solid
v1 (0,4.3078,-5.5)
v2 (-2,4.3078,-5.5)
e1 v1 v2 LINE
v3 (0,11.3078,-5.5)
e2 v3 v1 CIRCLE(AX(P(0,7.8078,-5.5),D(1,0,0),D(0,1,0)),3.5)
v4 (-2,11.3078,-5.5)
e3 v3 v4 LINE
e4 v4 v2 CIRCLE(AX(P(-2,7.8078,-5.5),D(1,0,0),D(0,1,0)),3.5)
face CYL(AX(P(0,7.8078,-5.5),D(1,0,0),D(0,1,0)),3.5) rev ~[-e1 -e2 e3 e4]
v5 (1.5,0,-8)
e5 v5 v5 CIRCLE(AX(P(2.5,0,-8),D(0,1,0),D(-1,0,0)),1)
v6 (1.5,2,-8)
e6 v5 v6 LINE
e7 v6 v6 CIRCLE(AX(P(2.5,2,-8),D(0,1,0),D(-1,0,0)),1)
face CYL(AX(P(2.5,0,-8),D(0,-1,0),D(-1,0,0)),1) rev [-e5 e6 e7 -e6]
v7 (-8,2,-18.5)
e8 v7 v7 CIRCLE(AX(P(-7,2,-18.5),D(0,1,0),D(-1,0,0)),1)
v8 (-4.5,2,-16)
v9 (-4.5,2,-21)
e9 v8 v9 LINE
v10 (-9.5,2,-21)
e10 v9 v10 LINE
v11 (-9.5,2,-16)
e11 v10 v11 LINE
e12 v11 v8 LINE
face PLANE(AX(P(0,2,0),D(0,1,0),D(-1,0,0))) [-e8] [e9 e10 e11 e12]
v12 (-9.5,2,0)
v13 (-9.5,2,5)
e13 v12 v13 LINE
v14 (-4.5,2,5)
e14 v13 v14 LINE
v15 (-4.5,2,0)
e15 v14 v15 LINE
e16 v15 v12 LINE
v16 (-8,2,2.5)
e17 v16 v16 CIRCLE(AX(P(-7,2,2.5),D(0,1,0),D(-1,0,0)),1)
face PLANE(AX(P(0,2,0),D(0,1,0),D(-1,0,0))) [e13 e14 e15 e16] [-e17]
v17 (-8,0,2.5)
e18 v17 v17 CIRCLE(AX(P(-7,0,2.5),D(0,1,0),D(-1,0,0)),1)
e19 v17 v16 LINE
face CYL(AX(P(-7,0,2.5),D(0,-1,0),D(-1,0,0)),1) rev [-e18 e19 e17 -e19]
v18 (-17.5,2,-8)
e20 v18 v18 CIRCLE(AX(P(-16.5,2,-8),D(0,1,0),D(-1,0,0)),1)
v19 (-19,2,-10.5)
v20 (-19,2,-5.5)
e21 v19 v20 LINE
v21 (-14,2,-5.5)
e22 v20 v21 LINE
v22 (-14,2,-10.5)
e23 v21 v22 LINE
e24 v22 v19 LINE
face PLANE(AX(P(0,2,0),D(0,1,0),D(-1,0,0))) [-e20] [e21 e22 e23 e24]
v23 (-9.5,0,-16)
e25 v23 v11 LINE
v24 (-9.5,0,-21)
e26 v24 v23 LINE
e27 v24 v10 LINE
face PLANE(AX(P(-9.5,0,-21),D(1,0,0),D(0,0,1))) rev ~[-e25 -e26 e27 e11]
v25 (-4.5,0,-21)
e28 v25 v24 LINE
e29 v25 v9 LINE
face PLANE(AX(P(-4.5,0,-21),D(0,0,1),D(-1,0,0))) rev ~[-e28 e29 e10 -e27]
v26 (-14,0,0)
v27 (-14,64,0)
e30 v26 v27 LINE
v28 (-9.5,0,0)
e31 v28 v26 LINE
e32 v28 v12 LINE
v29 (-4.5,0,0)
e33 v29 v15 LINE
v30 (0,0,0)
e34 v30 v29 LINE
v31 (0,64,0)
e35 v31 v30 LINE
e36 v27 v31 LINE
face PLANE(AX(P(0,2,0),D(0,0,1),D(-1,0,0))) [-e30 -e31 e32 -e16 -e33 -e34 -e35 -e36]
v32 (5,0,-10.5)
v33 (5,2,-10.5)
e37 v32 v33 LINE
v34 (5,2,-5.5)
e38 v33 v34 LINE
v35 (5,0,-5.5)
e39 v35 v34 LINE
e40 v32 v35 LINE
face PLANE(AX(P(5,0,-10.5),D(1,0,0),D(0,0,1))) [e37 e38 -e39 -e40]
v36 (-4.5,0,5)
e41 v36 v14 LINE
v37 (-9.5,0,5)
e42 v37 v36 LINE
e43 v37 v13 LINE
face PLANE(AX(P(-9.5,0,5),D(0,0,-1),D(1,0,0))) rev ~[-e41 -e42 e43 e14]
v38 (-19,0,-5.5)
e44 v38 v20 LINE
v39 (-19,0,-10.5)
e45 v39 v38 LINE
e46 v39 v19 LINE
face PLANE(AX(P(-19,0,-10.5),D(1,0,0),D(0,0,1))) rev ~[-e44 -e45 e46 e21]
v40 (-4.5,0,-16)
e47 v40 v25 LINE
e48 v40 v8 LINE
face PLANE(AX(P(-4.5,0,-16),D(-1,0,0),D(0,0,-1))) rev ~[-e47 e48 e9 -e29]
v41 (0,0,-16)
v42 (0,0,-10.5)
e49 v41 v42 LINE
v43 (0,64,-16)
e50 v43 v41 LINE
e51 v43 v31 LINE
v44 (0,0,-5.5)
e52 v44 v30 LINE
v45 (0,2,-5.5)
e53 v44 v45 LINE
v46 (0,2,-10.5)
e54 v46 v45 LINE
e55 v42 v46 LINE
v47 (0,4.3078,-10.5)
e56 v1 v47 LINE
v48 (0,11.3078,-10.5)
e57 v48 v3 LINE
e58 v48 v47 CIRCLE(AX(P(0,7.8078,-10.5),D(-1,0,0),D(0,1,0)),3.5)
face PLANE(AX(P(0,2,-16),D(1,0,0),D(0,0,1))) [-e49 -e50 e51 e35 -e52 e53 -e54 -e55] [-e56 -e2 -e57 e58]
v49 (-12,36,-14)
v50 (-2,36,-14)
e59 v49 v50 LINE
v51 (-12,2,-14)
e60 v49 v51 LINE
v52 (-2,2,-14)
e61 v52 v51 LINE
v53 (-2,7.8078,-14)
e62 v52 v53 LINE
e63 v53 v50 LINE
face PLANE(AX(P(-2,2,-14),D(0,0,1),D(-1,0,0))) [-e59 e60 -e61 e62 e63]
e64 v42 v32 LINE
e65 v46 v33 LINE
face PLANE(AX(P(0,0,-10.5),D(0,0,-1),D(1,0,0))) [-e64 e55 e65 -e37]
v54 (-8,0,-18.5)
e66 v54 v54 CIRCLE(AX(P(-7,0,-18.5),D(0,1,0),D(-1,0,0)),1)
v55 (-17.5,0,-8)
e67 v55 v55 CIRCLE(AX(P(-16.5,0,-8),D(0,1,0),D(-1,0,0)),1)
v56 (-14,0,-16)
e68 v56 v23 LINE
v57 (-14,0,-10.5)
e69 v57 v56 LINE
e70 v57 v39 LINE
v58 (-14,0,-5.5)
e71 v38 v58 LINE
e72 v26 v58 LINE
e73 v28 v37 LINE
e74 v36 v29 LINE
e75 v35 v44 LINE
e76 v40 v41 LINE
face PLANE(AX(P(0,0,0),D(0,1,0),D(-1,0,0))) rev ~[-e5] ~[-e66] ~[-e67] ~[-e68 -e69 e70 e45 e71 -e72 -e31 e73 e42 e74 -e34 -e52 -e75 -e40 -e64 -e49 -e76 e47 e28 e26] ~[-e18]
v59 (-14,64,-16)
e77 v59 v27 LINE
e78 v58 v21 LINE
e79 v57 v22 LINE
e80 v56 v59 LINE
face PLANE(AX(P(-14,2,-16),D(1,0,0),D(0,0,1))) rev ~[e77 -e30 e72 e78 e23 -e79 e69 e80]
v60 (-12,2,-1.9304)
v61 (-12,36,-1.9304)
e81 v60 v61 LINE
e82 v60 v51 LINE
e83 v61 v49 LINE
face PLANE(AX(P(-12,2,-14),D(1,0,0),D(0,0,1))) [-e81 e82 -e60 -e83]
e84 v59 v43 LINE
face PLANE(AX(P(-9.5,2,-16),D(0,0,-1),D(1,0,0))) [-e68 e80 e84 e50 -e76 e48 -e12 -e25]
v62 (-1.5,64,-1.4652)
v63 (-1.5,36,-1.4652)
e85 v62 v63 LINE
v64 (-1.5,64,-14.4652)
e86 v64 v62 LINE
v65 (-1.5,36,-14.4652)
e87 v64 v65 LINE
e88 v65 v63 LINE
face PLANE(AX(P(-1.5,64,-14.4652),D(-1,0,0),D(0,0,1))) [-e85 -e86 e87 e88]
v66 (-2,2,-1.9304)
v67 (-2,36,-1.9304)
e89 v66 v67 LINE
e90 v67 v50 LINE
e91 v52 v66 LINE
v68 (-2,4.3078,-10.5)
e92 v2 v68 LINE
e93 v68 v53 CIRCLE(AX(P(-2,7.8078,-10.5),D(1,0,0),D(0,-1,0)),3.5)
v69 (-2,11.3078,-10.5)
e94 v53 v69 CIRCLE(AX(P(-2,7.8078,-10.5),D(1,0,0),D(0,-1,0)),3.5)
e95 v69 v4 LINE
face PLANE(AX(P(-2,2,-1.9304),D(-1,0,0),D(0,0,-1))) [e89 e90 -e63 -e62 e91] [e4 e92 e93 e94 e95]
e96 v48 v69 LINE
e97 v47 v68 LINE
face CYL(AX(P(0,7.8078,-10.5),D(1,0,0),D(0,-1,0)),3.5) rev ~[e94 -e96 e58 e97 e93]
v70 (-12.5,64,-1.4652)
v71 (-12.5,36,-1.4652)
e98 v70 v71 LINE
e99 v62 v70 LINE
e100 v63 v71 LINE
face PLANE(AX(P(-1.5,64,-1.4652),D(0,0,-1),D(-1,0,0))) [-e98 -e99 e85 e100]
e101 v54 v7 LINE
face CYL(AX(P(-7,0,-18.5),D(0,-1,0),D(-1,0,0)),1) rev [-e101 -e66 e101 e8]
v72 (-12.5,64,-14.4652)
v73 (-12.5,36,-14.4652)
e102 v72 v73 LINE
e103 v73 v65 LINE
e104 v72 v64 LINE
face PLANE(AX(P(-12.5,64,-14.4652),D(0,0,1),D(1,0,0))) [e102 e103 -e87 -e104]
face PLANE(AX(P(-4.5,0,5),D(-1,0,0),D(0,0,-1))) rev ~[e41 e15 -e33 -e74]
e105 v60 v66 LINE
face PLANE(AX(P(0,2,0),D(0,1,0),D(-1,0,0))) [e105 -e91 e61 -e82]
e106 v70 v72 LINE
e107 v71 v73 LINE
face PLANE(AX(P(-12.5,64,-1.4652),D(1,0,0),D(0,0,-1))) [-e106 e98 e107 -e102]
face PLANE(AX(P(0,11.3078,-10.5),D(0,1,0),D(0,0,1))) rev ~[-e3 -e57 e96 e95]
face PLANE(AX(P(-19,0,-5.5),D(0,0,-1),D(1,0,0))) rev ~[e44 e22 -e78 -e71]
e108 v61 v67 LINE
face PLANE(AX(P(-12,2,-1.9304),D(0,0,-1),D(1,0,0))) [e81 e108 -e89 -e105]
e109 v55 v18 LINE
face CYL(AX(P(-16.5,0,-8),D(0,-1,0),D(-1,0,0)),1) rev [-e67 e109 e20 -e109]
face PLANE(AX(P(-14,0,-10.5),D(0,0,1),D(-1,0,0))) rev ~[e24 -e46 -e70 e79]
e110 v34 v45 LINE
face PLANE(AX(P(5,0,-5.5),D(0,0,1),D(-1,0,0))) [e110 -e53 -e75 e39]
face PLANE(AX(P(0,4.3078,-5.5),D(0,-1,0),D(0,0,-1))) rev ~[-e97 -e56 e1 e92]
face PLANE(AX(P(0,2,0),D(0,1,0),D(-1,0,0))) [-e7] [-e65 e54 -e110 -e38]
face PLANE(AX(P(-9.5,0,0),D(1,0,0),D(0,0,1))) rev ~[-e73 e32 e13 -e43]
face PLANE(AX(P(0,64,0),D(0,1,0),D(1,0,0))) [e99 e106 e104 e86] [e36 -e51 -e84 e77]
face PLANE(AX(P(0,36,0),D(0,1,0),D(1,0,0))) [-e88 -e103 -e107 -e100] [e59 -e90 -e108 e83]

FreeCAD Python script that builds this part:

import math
import FreeCAD as App
import Part
import Sketcher


def add_polygon(sketch, points):
    """Adds a closed chain of lines whose ends are joined by coincident constraints."""
    first, n = sketch.GeometryCount, len(points)
    for a, b in zip(points, points[1:] + points[:1]):
        sketch.addGeometry(Part.LineSegment(App.Vector(*a, 0), App.Vector(*b, 0)), False)
    for i in range(n):
        sketch.addConstraint(Sketcher.Constraint("Coincident", first + i, 2, first + (i + 1) % n, 1))

doc = App.newDocument("Part")
params = doc.addObject("Spreadsheet::Sheet", "Params")
for row, (alias, value) in enumerate([
    ("sketch1_diameter", "2 mm"),
    ("sketch1_width", "5 mm"),
    ("sketch1_width2", "10 mm"),
    ("sketch1_height", "12 mm"),
    ("pad1_length", "2 mm"),
    ("sketch2_width", "14 mm"),
    ("sketch2_width2", "10 mm"),
    ("sketch2_height", "16 mm"),
    ("pad2_length", "62 mm"),
    ("sketch3_radius", "3.5 mm"),
    ("sketch3_height", "5 mm"),
    ("pocket1_length", "2 mm"),
    ("sketch4_width", "10 mm"),
    ("sketch4_height", "12 mm"),
    ("pad3_length", "2 mm"),
    ("sketch5_width", "11 mm"),
    ("sketch5_height", "13 mm"),
    ("sketch5_width2", "10 mm"),
    ("sketch5_height2", "12 mm"),
    ("pocket2_length", "28 mm"),
], start=1):
    params.set(f"A{row}", alias)
    params.set(f"B{row}", "=" + value)
    params.setAlias(f"B{row}", alias)

body = doc.addObject("PartDesign::Body", "Body")

sketch1 = body.newObject("Sketcher::SketchObject", "Sketch")
sketch1.AttachmentSupport = (doc.getObject("XZ_Plane"), [""])
sketch1.MapMode = "FlatFace"
add_polygon(sketch1, [(-4.5, 0), (0, 0), (0, -5.5), (5, -5.5), (5, -10.5), (0, -10.5), (0, -16), (-4.5, -16), (-4.5, -21), (-9.5, -21), (-9.5, -16), (-14, -16), (-14, -10.5), (-19, -10.5), (-19, -5.5), (-14, -5.5), (-14, 0), (-9.5, 0), (-9.5, 5), (-4.5, 5)])
add_polygon(sketch1, [(-2, -2), (-12, -2), (-12, -14), (-2, -14)])
sketch1.addGeometry(Part.Circle(App.Vector(-7, 2.5, 0), App.Vector(0, 0, 1), 1), False)
sketch1.addGeometry(Part.Circle(App.Vector(-16.5, -8, 0), App.Vector(0, 0, 1), 1), False)
sketch1.addGeometry(Part.Circle(App.Vector(-7, -18.5, 0), App.Vector(0, 0, 1), 1), False)
sketch1.addGeometry(Part.Circle(App.Vector(2.5, -8, 0), App.Vector(0, 0, 1), 1), False)
sketch1.addConstraint(Sketcher.Constraint("Horizontal", 0))
sketch1.addConstraint(Sketcher.Constraint("Vertical", 1))
sketch1.addConstraint(Sketcher.Constraint("Horizontal", 2))
sketch1.addConstraint(Sketcher.Constraint("Vertical", 3))
sketch1.addConstraint(Sketcher.Constraint("Horizontal", 4))
sketch1.addConstraint(Sketcher.Constraint("Vertical", 5))
sketch1.addConstraint(Sketcher.Constraint("Horizontal", 6))
sketch1.addConstraint(Sketcher.Constraint("Vertical", 7))
sketch1.addConstraint(Sketcher.Constraint("Horizontal", 8))
sketch1.addConstraint(Sketcher.Constraint("Vertical", 9))
sketch1.addConstraint(Sketcher.Constraint("Horizontal", 10))
sketch1.addConstraint(Sketcher.Constraint("Vertical", 11))
sketch1.addConstraint(Sketcher.Constraint("Horizontal", 12))
sketch1.addConstraint(Sketcher.Constraint("Vertical", 13))
sketch1.addConstraint(Sketcher.Constraint("Horizontal", 14))
sketch1.addConstraint(Sketcher.Constraint("Vertical", 15))
sketch1.addConstraint(Sketcher.Constraint("Horizontal", 16))
sketch1.addConstraint(Sketcher.Constraint("Vertical", 17))
sketch1.addConstraint(Sketcher.Constraint("Horizontal", 18))
sketch1.addConstraint(Sketcher.Constraint("Vertical", 19))
sketch1.addConstraint(Sketcher.Constraint("Horizontal", 20))
sketch1.addConstraint(Sketcher.Constraint("Vertical", 21))
sketch1.addConstraint(Sketcher.Constraint("Horizontal", 22))
sketch1.addConstraint(Sketcher.Constraint("Vertical", 23))
sketch1.addConstraint(Sketcher.Constraint("Coincident", 0, 2, -1, 1))
sketch1.addConstraint(Sketcher.Constraint("Equal", 24, 25))
sketch1.addConstraint(Sketcher.Constraint("Equal", 25, 26))
sketch1.addConstraint(Sketcher.Constraint("Equal", 26, 27))
sketch1.addConstraint(Sketcher.Constraint("PointOnObject", 4, 2, -2))
sketch1.addConstraint(Sketcher.Constraint("PointOnObject", 15, 2, -1))
sketch1.addConstraint(Sketcher.Constraint("Horizontal", 25, 3, 27, 3))
sketch1.addConstraint(Sketcher.Constraint("Horizontal", 6, 2, 9, 2))
sketch1.addConstraint(Sketcher.Constraint("Horizontal", 4, 2, 11, 2))
sketch1.addConstraint(Sketcher.Constraint("Horizontal", 2, 2, 13, 2))
sketch1.addConstraint(Sketcher.Constraint("Vertical", 24, 3, 26, 3))
sketch1.addConstraint(Sketcher.Constraint("Vertical", 11, 2, 14, 2))
sketch1.addConstraint(Sketcher.Constraint("Vertical", 9, 2, 16, 2))
sketch1.addConstraint(Sketcher.Constraint("Vertical", 7, 2, 18, 2))
sketch1.addConstraint(Sketcher.Constraint("Equal", 4, 8))
sketch1.addConstraint(Sketcher.Constraint("Equal", 6, 10))
sketch1.addConstraint(Sketcher.Constraint("Equal", 8, 12))
sketch1.addConstraint(Sketcher.Constraint("Equal", 18, 3))
sketch1.addConstraint(Sketcher.Constraint("Equal", 1, 5))
sketch1.addConstraint(Sketcher.Constraint("Equal", 3, 7))
sketch1.addConstraint(Sketcher.Constraint("Equal", 13, 17))
sketch1.addConstraint(Sketcher.Constraint("Diameter", 24, 2.0))
sketch1.addConstraint(Sketcher.Constraint("DistanceX", 2, 1, 2, 2, 5.0))
sketch1.addConstraint(Sketcher.Constraint("DistanceX", 20, 2, 20, 1, 10.0))
sketch1.addConstraint(Sketcher.Constraint("DistanceY", 21, 2, 21, 1, 12.0))
sketch1.addConstraint(Sketcher.Constraint("DistanceY", 5, 2, -1, 1, 16.0))
sketch1.addConstraint(Sketcher.Constraint("DistanceX", 10, 2, -1, 1, 14.0))
sketch1.addConstraint(Sketcher.Constraint("DistanceX", 20, 2, -1, 1, 12.0))
sketch1.addConstraint(Sketcher.Constraint("DistanceY", 20, 2, -1, 1, 2.0))
sketch1.addConstraint(Sketcher.Constraint("DistanceX", 24, 3, 2, 2, 12.0))
sketch1.addConstraint(Sketcher.Constraint("DistanceY", -1, 1, 24, 3, 2.5))
sketch1.addConstraint(Sketcher.Constraint("DistanceX", -1, 1, 27, 3, 2.5))
sketch1.addConstraint(Sketcher.Constraint("DistanceY", 27, 3, 1, 2, 2.5))
sketch1.addConstraint(Sketcher.Constraint("DistanceY", 26, 3, 5, 2, 2.5))
sketch1.addConstraint(Sketcher.Constraint("DistanceX", 25, 3, 10, 2, 2.5))
sketch1.setExpression("Constraints[69]", "Params.sketch1_diameter")
sketch1.setExpression("Constraints[70]", "Params.sketch1_width")
sketch1.setExpression("Constraints[71]", "Params.sketch1_width2")
sketch1.setExpression("Constraints[72]", "Params.sketch1_height")
pad1 = body.newObject("PartDesign::Pad", "Pad")
pad1.Profile = sketch1
pad1.setExpression("Length", "Params.pad1_length")
pad1.Reversed = True

sketch2 = body.newObject("Sketcher::SketchObject", "Sketch001")
sketch2.AttachmentSupport = (doc.getObject("XZ_Plane"), [""])
sketch2.MapMode = "FlatFace"
sketch2.AttachmentOffset = App.Placement(App.Vector(0, 0, -2), App.Rotation())
add_polygon(sketch2, [(0, -16), (-14, -16), (-14, 0), (0, 0)])
add_polygon(sketch2, [(-12, -14), (-2, -14), (-2, -2), (-12, -2)])
sketch2.addConstraint(Sketcher.Constraint("Horizontal", 0))
sketch2.addConstraint(Sketcher.Constraint("Vertical", 1))
sketch2.addConstraint(Sketcher.Constraint("Horizontal", 2))
sketch2.addConstraint(Sketcher.Constraint("Vertical", 3))
sketch2.addConstraint(Sketcher.Constraint("Horizontal", 4))
sketch2.addConstraint(Sketcher.Constraint("Vertical", 5))
sketch2.addConstraint(Sketcher.Constraint("Horizontal", 6))
sketch2.addConstraint(Sketcher.Constraint("Vertical", 7))
sketch2.addConstraint(Sketcher.Constraint("Coincident", 2, 2, -1, 1))
sketch2.addConstraint(Sketcher.Constraint("DistanceX", 0, 2, 0, 1, 14.0))
sketch2.addConstraint(Sketcher.Constraint("DistanceX", 4, 1, 4, 2, 10.0))
sketch2.addConstraint(Sketcher.Constraint("DistanceY", 1, 1, 1, 2, 16.0))
sketch2.addConstraint(Sketcher.Constraint("DistanceX", 4, 2, -1, 1, 2.0))
sketch2.addConstraint(Sketcher.Constraint("DistanceY", 4, 2, -1, 1, 14.0))
sketch2.addConstraint(Sketcher.Constraint("DistanceY", 5, 1, 5, 2, 12.0696))
sketch2.setExpression("Constraints[17]", "Params.sketch2_width")
sketch2.setExpression("Constraints[18]", "Params.sketch2_width2")
sketch2.setExpression("Constraints[19]", "Params.sketch2_height")
pad2 = body.newObject("PartDesign::Pad", "Pad001")
pad2.Profile = sketch2
pad2.setExpression("Length", "Params.pad2_length")
pad2.Reversed = True

sketch3 = body.newObject("Sketcher::SketchObject", "Sketch002")
sketch3.AttachmentSupport = (doc.getObject("YZ_Plane"), [""])
sketch3.MapMode = "FlatFace"
sketch3.addGeometry(Part.ArcOfCircle(Part.Circle(App.Vector(7.8, -5.5, 0), App.Vector(0, 0, 1), 3.5), math.radians(0), math.radians(180)), False)
sketch3.addGeometry(Part.LineSegment(App.Vector(4.3, -5.5, 0), App.Vector(4.3, -10.5, 0)), False)
sketch3.addGeometry(Part.ArcOfCircle(Part.Circle(App.Vector(7.8, -10.5, 0), App.Vector(0, 0, 1), 3.5), math.radians(180), math.radians(360)), False)
sketch3.addGeometry(Part.LineSegment(App.Vector(11.3, -10.5, 0), App.Vector(11.3, -5.5, 0)), False)
sketch3.addConstraint(Sketcher.Constraint("Tangent", 0, 2, 1, 1))
sketch3.addConstraint(Sketcher.Constraint("Tangent", 1, 2, 2, 1))
sketch3.addConstraint(Sketcher.Constraint("Tangent", 2, 2, 3, 1))
sketch3.addConstraint(Sketcher.Constraint("Tangent", 3, 2, 0, 1))
sketch3.addConstraint(Sketcher.Constraint("Vertical", 1))
sketch3.addConstraint(Sketcher.Constraint("Vertical", 3))
sketch3.addConstraint(Sketcher.Constraint("Radius", 0, 3.5))
sketch3.addConstraint(Sketcher.Constraint("DistanceY", 1, 2, 1, 1, 5.0))
sketch3.addConstraint(Sketcher.Constraint("DistanceY", 0, 3, -1, 1, 5.5))
sketch3.addConstraint(Sketcher.Constraint("DistanceX", -1, 1, 0, 3, 7.8078))
sketch3.setExpression("Constraints[6]", "Params.sketch3_radius")
sketch3.setExpression("Constraints[7]", "Params.sketch3_height")
pocket1 = body.newObject("PartDesign::Pocket", "Pocket")
pocket1.Profile = sketch3
pocket1.setExpression("Length", "Params.pocket1_length")

sketch4 = body.newObject("Sketcher::SketchObject", "Sketch003")
sketch4.AttachmentSupport = (doc.getObject("XZ_Plane"), [""])
sketch4.MapMode = "FlatFace"
add_polygon(sketch4, [(-12, -14), (-12, -2), (-2, -2), (-2, -14)])
sketch4.addConstraint(Sketcher.Constraint("Vertical", 0))
sketch4.addConstraint(Sketcher.Constraint("Horizontal", 1))
sketch4.addConstraint(Sketcher.Constraint("Vertical", 2))
sketch4.addConstraint(Sketcher.Constraint("Horizontal", 3))
sketch4.addConstraint(Sketcher.Constraint("DistanceX", 1, 1, 1, 2, 10.0))
sketch4.addConstraint(Sketcher.Constraint("DistanceY", 0, 1, 0, 2, 12.0))
sketch4.addConstraint(Sketcher.Constraint("DistanceX", 0, 2, -1, 1, 12.0))
sketch4.addConstraint(Sketcher.Constraint("DistanceY", 0, 2, -1, 1, 2.0))
sketch4.setExpression("Constraints[8]", "Params.sketch4_width")
sketch4.setExpression("Constraints[9]", "Params.sketch4_height")
pad3 = body.newObject("PartDesign::Pad", "Pad002")
pad3.Profile = sketch4
pad3.setExpression("Length", "Params.pad3_length")
pad3.Reversed = True

sketch5 = body.newObject("Sketcher::SketchObject", "Sketch004")
sketch5.AttachmentSupport = (doc.getObject("XZ_Plane"), [""])
sketch5.MapMode = "FlatFace"
sketch5.AttachmentOffset = App.Placement(App.Vector(0, 0, -64), App.Rotation())
add_polygon(sketch5, [(-2, -14), (-12, -14), (-12, -1), (-2, -1)])
add_polygon(sketch5, [(-12, -2), (-12, -14), (-2, -14), (-2, -2)])
sketch5.addConstraint(Sketcher.Constraint("Horizontal", 0))
sketch5.addConstraint(Sketcher.Constraint("Vertical", 1))
sketch5.addConstraint(Sketcher.Constraint("Horizontal", 2))
sketch5.addConstraint(Sketcher.Constraint("Vertical", 3))
sketch5.addConstraint(Sketcher.Constraint("Vertical", 4))
sketch5.addConstraint(Sketcher.Constraint("Horizontal", 5))
sketch5.addConstraint(Sketcher.Constraint("Vertical", 6))
sketch5.addConstraint(Sketcher.Constraint("DistanceX", 0, 2, 0, 1, 11.0))
sketch5.addConstraint(Sketcher.Constraint("DistanceY", 1, 1, 1, 2, 13.0))
sketch5.addConstraint(Sketcher.Constraint("DistanceX", 5, 1, 5, 2, 10.0))
sketch5.addConstraint(Sketcher.Constraint("DistanceY", 6, 1, 6, 2, 12.0))
sketch5.addConstraint(Sketcher.Constraint("DistanceX", 4, 2, -1, 1, 12.0))
sketch5.addConstraint(Sketcher.Constraint("DistanceY", 4, 2, -1, 1, 14.0))
sketch5.addConstraint(Sketcher.Constraint("DistanceX", 0, 2, -1, 1, 12.5))
sketch5.addConstraint(Sketcher.Constraint("DistanceY", 4, 2, 4, 1, 12.0696))
sketch5.addConstraint(Sketcher.Constraint("DistanceY", 0, 2, -1, 1, 14.4652))
sketch5.setExpression("Constraints[15]", "Params.sketch5_width")
sketch5.setExpression("Constraints[16]", "Params.sketch5_height")
sketch5.setExpression("Constraints[17]", "Params.sketch5_width2")
sketch5.setExpression("Constraints[18]", "Params.sketch5_height2")
pocket2 = body.newObject("PartDesign::Pocket", "Pocket001")
pocket2.Profile = sketch5
pocket2.setExpression("Length", "Params.pocket2_length")
pocket2.Reversed = True

doc.recompute()
